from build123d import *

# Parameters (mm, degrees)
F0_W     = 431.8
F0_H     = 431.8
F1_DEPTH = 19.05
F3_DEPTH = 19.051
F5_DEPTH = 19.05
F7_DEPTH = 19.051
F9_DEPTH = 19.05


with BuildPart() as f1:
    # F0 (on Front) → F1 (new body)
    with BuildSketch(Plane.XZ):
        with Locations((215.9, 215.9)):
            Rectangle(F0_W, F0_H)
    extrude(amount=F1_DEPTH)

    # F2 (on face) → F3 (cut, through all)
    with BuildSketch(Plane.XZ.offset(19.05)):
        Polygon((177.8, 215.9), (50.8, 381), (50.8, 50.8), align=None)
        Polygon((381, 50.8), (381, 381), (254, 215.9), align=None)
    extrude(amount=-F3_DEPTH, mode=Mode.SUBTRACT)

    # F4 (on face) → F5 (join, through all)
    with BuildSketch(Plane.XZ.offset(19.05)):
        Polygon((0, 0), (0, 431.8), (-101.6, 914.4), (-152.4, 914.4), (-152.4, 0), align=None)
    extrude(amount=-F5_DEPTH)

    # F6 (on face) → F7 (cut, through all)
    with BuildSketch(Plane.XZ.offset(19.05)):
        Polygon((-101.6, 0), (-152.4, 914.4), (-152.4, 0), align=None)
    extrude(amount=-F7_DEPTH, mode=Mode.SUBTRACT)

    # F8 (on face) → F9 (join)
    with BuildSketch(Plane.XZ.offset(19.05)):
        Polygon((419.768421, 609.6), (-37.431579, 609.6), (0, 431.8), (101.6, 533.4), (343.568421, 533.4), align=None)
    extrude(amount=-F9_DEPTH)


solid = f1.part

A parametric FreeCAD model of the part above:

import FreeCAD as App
import Part
import Sketcher

V = App.Vector
Q = App.Units.Quantity


def add_polygon(sketch, points):
    """Adds a closed chain of lines whose ends are joined by coincident constraints."""
    first, n = sketch.GeometryCount, len(points)
    for a, b in zip(points, points[1:] + points[:1]):
        sketch.addGeometry(Part.LineSegment(App.Vector(*a, 0), App.Vector(*b, 0)), False)
    for i in range(n):
        sketch.addConstraint(Sketcher.Constraint("Coincident", first + i, 2, first + (i + 1) % n, 1))

doc = App.newDocument("Part")
body = doc.addObject("PartDesign::Body", "Body")

# Sketch on XZ plane
sketch1 = body.newObject("Sketcher::SketchObject", "Sketch")
sketch1.AttachmentSupport = (doc.getObject("XZ_Plane"), [""])
sketch1.MapMode = "FlatFace"
add_polygon(sketch1, [(0, 432), (0, 0), (432, 0), (432, 432)])  # lines 0-3
sketch1.addConstraint(Sketcher.Constraint("Vertical", 0))
sketch1.addConstraint(Sketcher.Constraint("Horizontal", 1))
sketch1.addConstraint(Sketcher.Constraint("Vertical", 2))
sketch1.addConstraint(Sketcher.Constraint("Horizontal", 3))
sketch1.addConstraint(Sketcher.Constraint("Coincident", 0, 2, -1, 1))
sketch1.addConstraint(Sketcher.Constraint("Equal", 3, 0))
sketch1.addConstraint(Sketcher.Constraint("DistanceX", 1, 1, 1, 2, Q("17 in")))
pad1 = body.newObject("PartDesign::Pad", "Pad")
pad1.Profile = sketch1
pad1.Length = Q("0.75 in")

# Sketch on XZ plane
sketch2 = body.newObject("Sketcher::SketchObject", "Sketch001")
sketch2.AttachmentSupport = (doc.getObject("XZ_Plane"), [""])
sketch2.MapMode = "FlatFace"
sketch2.AttachmentOffset = App.Placement(V(0, 0, 0.75 * 25.4), App.Rotation())
add_polygon(sketch2, [(178, 216), (51, 381), (51, 51)])  # lines 0-2
add_polygon(sketch2, [(381, 51), (381, 381), (254, 216)])  # lines 3-5
sketch2.addConstraint(Sketcher.Constraint("Vertical", 1))
sketch2.addConstraint(Sketcher.Constraint("Vertical", 3))
sketch2.addConstraint(Sketcher.Constraint("Parallel", 2, 4))
sketch2.addConstraint(Sketcher.Constraint("Parallel", 0, 5))
sketch2.addConstraint(Sketcher.Constraint("Horizontal", 0, 2, 3, 2))
sketch2.addConstraint(Sketcher.Constraint("Horizontal", 2, 2, 4, 2))
sketch2.addConstraint(Sketcher.Constraint("Horizontal", 1, 2, 5, 2))
sketch2.addConstraint(Sketcher.Constraint("DistanceY", 1, 2, 1, 1, Q("13 in")))
sketch2.addConstraint(Sketcher.Constraint("DistanceX", -1, 1, 0, 2, Q("2 in")))
sketch2.addConstraint(Sketcher.Constraint("DistanceY", -1, 1, 0, 2, Q("15 in")))
sketch2.addConstraint(Sketcher.Constraint("DistanceX", -1, 1, 2, 2, Q("7 in")))
sketch2.addConstraint(Sketcher.Constraint("DistanceX", -1, 1, 3, 2, Q("15 in")))
pocket1 = body.newObject("PartDesign::Pocket", "Pocket")
pocket1.Profile = sketch2
pocket1.Type = "ThroughAll"

# Sketch on XZ plane
sketch3 = body.newObject("Sketcher::SketchObject", "Sketch002")
sketch3.AttachmentSupport = (doc.getObject("XZ_Plane"), [""])
sketch3.MapMode = "FlatFace"
sketch3.AttachmentOffset = App.Placement(V(0, 0, 0.75 * 25.4), App.Rotation())
add_polygon(sketch3, [(0, 0), (0, 432), (-102, 914), (-152, 914), (-152, 0)])  # lines 0-4
sketch3.addConstraint(Sketcher.Constraint("Vertical", 0))
sketch3.addConstraint(Sketcher.Constraint("Horizontal", 2))
sketch3.addConstraint(Sketcher.Constraint("Vertical", 3))
sketch3.addConstraint(Sketcher.Constraint("Horizontal", 4))
sketch3.addConstraint(Sketcher.Constraint("Coincident", 4, 2, -1, 1))
sketch3.addConstraint(Sketcher.Constraint("DistanceX", 2, 2, 2, 1, Q("2 in")))
sketch3.addConstraint(Sketcher.Constraint("DistanceX", 4, 1, 4, 2, Q("6 in")))
sketch3.addConstraint(Sketcher.Constraint("DistanceY", 0, 1, 0, 2, Q("17 in")))
sketch3.addConstraint(Sketcher.Constraint("DistanceY", 3, 2, 3, 1, Q("36 in")))
pad2 = body.newObject("PartDesign::Pad", "Pad001")
pad2.Profile = sketch3
pad2.Length = Q("0.75 in")
pad2.Reversed = True

# Sketch on XZ plane
sketch4 = body.newObject("Sketcher::SketchObject", "Sketch003")
sketch4.AttachmentSupport = (doc.getObject("XZ_Plane"), [""])
sketch4.MapMode = "FlatFace"
sketch4.AttachmentOffset = App.Placement(V(0, 0, 0.75 * 25.4), App.Rotation())
add_polygon(sketch4, [(-102, 0), (-152, 914), (-152, 0)])  # lines 0-2
sketch4.addConstraint(Sketcher.Constraint("Vertical", 1))
sketch4.addConstraint(Sketcher.Constraint("Horizontal", 2))
sketch4.addConstraint(Sketcher.Constraint("PointOnObject", 1, 2, -1))
sketch4.addConstraint(Sketcher.Constraint("DistanceX", 2, 1, 2, 2, Q("2 in")))
sketch4.addConstraint(Sketcher.Constraint("DistanceY", 1, 2, 1, 1, Q("36 in")))
sketch4.addConstraint(Sketcher.Constraint("DistanceX", 0, 2, -1, 1, Q("6 in")))
pocket2 = body.newObject("PartDesign::Pocket", "Pocket001")
pocket2.Profile = sketch4
pocket2.Type = "ThroughAll"

# Sketch on XZ plane
sketch5 = body.newObject("Sketcher::SketchObject", "Sketch004")
sketch5.AttachmentSupport = (doc.getObject("XZ_Plane"), [""])
sketch5.MapMode = "FlatFace"
sketch5.AttachmentOffset = App.Placement(V(0, 0, 0.75 * 25.4), App.Rotation())
add_polygon(sketch5, [(420, 610), (-37, 610), (0, 432), (102, 533), (344, 533)])  # lines 0-4
sketch5.addConstraint(Sketcher.Constraint("Horizontal", 0))
sketch5.addConstraint(Sketcher.Constraint("Horizontal", 3))
sketch5.addConstraint(Sketcher.Constraint("PointOnObject", 1, 2, -2))
sketch5.addConstraint(Sketcher.Constraint("Parallel", 2, 4))
sketch5.addConstraint(Sketcher.Constraint("DistanceX", 0, 2, 0, 1, Q("18 in")))
sketch5.addConstraint(Sketcher.Constraint("DistanceY", -1, 1, 0, 2, Q("24 in")))
sketch5.addConstraint(Sketcher.Constraint("DistanceY", -1, 1, 1, 2, Q("17 in")))
sketch5.addConstraint(Sketcher.Constraint("DistanceX", -1, 1, 2, 2, Q("4 in")))
sketch5.addConstraint(Sketcher.Constraint("DistanceY", -1, 1, 2, 2, Q("21 in")))
sketch5.addConstraint(Sketcher.Constraint("DistanceX", 3, 1, 3, 2, Q("241.968421 mm")))
pad3 = body.newObject("PartDesign::Pad", "Pad002")
pad3.Profile = sketch5
pad3.Length = Q("0.75 in")
pad3.Reversed = True

doc.recompute()
